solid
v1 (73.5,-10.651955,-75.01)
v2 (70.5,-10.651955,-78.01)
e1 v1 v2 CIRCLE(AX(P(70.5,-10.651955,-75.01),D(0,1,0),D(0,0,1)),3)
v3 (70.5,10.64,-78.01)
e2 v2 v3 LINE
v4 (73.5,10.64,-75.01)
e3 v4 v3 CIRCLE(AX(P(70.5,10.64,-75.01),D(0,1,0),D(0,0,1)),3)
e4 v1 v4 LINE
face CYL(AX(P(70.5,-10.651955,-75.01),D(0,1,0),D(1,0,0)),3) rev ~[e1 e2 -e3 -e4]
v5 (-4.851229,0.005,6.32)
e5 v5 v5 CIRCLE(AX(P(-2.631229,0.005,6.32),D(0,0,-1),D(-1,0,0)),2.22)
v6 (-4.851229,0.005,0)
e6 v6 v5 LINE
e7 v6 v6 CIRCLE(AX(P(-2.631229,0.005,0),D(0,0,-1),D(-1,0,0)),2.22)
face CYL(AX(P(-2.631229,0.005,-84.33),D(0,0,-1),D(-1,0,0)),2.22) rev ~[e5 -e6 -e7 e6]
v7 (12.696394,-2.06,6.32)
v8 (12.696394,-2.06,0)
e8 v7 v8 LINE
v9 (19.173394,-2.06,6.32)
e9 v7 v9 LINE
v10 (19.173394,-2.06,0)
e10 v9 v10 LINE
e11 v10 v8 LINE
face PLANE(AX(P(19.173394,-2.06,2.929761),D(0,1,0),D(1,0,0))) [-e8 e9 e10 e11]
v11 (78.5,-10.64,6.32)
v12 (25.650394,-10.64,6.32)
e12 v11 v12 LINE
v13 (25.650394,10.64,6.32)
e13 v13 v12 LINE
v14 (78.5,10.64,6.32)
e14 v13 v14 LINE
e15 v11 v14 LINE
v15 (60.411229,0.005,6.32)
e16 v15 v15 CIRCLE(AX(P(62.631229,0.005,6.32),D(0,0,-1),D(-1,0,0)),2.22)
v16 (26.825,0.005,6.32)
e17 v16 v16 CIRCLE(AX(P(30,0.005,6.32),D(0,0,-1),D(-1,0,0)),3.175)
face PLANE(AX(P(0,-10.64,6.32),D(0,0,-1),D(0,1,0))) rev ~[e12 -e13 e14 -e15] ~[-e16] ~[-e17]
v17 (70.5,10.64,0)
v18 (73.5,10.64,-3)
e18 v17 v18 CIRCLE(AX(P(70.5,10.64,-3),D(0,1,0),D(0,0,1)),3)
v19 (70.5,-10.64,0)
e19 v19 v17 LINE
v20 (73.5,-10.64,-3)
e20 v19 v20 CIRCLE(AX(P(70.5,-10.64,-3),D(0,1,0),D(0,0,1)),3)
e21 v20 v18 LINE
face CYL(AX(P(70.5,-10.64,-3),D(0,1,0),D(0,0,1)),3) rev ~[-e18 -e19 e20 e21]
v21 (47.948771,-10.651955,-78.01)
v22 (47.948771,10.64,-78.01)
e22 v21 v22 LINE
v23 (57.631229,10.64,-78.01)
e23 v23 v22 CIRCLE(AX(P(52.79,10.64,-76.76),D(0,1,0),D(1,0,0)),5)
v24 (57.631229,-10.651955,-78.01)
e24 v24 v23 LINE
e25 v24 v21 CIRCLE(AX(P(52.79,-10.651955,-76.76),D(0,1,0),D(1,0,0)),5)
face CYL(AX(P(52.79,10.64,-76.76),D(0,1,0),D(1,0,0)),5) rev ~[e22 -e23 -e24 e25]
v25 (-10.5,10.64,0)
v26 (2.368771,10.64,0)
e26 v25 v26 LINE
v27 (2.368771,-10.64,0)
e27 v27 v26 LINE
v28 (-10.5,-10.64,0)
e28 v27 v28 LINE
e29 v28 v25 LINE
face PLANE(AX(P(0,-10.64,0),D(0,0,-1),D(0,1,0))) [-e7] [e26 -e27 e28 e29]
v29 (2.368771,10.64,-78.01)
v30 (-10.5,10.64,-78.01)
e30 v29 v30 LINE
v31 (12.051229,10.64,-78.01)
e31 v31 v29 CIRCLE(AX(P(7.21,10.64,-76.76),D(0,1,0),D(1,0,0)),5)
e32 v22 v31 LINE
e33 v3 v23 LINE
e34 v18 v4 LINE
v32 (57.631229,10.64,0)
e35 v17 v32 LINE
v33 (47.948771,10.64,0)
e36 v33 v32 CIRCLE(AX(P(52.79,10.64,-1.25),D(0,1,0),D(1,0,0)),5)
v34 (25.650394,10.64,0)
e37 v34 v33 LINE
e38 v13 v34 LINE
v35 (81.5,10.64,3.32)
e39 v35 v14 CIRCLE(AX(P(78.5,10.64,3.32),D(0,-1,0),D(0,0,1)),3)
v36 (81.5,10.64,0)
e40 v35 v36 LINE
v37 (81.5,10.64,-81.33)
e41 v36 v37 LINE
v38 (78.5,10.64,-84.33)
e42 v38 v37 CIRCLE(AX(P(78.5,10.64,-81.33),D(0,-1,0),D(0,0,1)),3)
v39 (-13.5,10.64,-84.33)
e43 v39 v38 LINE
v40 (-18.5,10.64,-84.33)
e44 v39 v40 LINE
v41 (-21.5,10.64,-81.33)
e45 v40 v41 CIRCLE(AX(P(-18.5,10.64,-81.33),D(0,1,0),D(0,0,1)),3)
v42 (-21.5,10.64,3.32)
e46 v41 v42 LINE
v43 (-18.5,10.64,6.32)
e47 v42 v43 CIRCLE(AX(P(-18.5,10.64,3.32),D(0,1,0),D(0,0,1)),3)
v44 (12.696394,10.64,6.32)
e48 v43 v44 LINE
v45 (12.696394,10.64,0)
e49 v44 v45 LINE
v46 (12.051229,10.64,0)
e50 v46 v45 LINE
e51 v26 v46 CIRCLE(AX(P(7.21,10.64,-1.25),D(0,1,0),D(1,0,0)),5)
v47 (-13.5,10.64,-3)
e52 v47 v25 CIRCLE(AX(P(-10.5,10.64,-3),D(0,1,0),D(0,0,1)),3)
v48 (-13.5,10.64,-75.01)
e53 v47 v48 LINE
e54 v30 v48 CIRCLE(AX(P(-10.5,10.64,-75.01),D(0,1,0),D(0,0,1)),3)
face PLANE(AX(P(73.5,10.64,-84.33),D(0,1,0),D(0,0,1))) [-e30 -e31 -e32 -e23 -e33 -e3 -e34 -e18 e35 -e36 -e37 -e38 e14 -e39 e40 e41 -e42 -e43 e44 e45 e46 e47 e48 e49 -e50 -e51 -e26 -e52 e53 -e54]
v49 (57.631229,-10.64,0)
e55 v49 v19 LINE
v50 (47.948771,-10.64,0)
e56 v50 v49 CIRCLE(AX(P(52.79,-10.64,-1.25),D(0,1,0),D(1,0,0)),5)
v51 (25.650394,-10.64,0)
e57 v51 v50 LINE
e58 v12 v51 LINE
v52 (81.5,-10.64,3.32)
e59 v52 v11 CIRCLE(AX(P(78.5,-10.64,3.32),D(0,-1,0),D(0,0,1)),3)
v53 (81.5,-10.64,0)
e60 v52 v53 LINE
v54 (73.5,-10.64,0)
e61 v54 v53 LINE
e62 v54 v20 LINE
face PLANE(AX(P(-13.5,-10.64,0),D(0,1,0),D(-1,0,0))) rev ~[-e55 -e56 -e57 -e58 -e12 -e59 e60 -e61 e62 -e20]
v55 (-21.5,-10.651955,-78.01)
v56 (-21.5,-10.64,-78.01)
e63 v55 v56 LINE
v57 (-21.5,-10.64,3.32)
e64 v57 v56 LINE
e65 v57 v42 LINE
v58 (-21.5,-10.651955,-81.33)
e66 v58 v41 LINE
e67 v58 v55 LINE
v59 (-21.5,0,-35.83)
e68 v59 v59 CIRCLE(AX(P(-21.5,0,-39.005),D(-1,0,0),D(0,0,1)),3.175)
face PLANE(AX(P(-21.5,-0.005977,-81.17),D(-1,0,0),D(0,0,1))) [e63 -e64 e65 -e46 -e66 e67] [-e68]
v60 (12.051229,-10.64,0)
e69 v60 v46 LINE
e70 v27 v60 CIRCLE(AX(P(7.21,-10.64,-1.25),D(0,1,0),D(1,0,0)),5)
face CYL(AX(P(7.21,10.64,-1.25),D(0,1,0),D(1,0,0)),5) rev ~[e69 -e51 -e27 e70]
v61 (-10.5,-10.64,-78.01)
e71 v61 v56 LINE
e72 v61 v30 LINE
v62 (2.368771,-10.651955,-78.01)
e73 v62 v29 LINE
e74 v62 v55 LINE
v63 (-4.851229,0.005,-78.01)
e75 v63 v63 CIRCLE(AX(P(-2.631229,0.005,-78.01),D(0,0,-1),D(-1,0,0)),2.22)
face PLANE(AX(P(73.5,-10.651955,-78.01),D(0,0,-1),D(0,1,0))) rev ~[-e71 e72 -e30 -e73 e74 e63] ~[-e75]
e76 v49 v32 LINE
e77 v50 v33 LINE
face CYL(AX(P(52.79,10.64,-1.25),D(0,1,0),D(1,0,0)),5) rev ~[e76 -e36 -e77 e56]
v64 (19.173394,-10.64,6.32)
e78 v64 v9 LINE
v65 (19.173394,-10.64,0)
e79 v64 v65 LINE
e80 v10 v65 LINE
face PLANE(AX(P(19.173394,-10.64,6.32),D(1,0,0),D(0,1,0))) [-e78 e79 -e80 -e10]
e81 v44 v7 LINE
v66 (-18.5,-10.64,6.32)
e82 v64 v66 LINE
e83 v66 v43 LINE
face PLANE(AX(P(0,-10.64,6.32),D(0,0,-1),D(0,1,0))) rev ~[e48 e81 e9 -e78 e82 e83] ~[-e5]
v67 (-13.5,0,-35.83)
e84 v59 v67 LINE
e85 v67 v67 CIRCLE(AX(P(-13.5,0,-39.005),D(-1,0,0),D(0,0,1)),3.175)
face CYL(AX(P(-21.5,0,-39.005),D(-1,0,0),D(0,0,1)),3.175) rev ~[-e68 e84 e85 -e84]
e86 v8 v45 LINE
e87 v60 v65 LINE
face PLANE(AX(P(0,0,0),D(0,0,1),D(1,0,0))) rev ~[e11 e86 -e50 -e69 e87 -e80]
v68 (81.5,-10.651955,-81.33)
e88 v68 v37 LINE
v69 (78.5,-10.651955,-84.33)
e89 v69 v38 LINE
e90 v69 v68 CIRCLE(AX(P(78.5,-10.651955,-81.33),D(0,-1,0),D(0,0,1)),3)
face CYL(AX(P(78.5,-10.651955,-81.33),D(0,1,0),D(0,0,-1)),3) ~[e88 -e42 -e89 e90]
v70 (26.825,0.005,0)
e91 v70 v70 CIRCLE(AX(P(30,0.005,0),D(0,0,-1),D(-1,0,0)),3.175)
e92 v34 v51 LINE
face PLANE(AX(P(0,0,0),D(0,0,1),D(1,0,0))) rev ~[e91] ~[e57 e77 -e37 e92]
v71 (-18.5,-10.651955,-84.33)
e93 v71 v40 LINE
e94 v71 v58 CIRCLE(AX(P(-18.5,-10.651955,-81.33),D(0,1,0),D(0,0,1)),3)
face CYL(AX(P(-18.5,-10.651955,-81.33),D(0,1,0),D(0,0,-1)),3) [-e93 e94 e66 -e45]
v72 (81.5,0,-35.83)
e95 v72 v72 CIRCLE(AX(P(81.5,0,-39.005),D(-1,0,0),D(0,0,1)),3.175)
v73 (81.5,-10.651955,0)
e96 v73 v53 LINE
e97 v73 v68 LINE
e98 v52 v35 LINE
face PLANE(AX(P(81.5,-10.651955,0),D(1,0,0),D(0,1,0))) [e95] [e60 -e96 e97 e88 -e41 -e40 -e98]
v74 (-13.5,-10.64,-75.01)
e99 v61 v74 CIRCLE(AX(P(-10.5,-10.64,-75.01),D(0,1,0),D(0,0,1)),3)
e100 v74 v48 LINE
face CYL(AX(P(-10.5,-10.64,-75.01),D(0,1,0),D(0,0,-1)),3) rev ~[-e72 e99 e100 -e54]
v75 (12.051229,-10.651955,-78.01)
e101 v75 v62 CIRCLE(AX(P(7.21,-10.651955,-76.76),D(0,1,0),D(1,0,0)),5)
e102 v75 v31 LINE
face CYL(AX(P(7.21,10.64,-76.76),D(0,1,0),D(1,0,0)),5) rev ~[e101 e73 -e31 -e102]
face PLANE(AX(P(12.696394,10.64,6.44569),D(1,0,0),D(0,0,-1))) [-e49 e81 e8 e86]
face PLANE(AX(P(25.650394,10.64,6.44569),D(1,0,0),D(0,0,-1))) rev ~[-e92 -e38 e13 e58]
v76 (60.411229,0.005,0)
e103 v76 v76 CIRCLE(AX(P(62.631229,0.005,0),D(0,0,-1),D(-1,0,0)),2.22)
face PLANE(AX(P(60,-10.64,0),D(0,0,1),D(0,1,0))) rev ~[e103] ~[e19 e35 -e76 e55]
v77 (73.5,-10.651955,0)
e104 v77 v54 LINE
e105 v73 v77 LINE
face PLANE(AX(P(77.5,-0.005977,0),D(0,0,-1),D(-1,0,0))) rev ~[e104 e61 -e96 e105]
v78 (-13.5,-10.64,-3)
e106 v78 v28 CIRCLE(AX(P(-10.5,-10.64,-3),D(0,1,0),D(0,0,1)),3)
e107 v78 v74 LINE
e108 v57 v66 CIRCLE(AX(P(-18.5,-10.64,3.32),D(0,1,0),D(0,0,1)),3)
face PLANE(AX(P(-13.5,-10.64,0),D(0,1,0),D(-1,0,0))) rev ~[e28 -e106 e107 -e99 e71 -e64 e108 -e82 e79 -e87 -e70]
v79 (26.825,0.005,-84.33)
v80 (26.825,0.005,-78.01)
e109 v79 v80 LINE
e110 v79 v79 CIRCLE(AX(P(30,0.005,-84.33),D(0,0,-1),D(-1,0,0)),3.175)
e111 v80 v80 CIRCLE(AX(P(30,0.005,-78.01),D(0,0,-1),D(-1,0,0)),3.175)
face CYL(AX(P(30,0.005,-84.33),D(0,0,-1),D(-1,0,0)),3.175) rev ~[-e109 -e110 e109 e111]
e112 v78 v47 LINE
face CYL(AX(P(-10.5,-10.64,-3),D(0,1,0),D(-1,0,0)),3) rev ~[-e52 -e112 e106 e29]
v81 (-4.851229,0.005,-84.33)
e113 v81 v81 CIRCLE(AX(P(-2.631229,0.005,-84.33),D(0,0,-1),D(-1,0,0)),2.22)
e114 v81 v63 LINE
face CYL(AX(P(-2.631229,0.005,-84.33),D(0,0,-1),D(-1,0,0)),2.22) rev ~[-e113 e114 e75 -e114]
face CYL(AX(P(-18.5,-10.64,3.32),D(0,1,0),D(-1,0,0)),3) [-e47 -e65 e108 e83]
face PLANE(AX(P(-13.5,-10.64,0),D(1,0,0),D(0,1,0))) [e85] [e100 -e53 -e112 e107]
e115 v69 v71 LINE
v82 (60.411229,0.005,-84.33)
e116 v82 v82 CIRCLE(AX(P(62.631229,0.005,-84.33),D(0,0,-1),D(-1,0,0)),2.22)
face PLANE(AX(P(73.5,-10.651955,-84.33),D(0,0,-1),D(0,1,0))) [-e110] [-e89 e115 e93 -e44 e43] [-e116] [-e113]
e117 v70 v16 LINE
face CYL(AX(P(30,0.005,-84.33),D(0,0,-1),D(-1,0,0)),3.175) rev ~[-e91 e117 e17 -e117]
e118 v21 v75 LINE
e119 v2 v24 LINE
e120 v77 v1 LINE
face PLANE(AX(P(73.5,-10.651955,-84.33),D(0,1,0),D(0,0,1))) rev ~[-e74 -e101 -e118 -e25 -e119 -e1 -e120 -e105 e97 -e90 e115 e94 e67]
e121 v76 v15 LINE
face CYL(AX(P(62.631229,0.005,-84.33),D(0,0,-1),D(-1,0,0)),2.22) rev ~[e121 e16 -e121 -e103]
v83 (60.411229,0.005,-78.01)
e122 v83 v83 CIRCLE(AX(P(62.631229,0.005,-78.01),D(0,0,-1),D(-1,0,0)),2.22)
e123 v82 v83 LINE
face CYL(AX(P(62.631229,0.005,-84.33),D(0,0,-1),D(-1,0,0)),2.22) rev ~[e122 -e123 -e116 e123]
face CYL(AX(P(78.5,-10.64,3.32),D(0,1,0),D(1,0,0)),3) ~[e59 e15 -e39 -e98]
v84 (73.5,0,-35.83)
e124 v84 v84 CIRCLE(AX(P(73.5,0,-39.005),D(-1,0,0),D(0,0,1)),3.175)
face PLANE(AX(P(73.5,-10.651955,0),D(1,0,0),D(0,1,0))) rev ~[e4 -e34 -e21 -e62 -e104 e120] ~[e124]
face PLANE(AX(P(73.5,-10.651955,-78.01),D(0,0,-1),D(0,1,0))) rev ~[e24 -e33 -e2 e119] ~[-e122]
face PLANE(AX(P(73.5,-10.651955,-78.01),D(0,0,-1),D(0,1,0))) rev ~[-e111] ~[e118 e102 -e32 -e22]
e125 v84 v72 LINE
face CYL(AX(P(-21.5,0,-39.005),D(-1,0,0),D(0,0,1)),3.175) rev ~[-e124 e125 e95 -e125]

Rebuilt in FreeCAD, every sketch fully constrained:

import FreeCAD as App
import Part
import Sketcher
Q = App.Units.Quantity


def edges_at(feature, points):
    """Names of the edges that pass closest to the given points."""
    edges = feature.Shape.Edges
    near = lambda p: min(range(len(edges)), key=lambda i: edges[i].distToShape(Part.Vertex(*p))[0])
    return sorted({f"Edge{near(p) + 1}" for p in points})


def add_polygon(sketch, points):
    """Adds a closed chain of lines whose ends are joined by coincident constraints."""
    first, n = sketch.GeometryCount, len(points)
    for a, b in zip(points, points[1:] + points[:1]):
        sketch.addGeometry(Part.LineSegment(App.Vector(*a, 0), App.Vector(*b, 0)), False)
    for i in range(n):
        sketch.addConstraint(Sketcher.Constraint("Coincident", first + i, 2, first + (i + 1) % n, 1))

doc = App.newDocument("Part")
body = doc.addObject("PartDesign::Body", "Body")

# Sketch on XZ plane
sketch1 = body.newObject("Sketcher::SketchObject", "Sketch")
sketch1.AttachmentSupport = (doc.getObject("XZ_Plane"), [""])
sketch1.MapMode = "FlatFace"
add_polygon(sketch1, [(0, 0), (0, 6), (60, 6), (60, 0)])  # lines 0-3
sketch1.addConstraint([
    Sketcher.Constraint("Vertical", 0),
    Sketcher.Constraint("Horizontal", 1),
    Sketcher.Constraint("Vertical", 2),
    Sketcher.Constraint("Horizontal", 3),
    Sketcher.Constraint("Coincident", 3, 2, -1, 1),
    Sketcher.Constraint("DistanceX", 1, 1, 1, 2, Q("60 mm")),
    Sketcher.Constraint("DistanceY", 0, 1, 0, 2, Q("6.32 mm")),
])
pad1 = body.newObject("PartDesign::Pad", "Pad")
pad1.Profile = sketch1
pad1.Length = 21.28
pad1.Midplane = True

# Sketch on XZ plane
sketch2 = body.newObject("Sketcher::SketchObject", "Sketch001")
sketch2.AttachmentSupport = (doc.getObject("XZ_Plane"), [""])
sketch2.MapMode = "FlatFace"
sketch2.AttachmentOffset = App.Placement(App.Vector(0, 0, -10.64), App.Rotation())
sketch2.addGeometry([
    Part.Circle(App.Vector(7, -1, 0), App.Vector(0, 0, 1), 5),
    Part.Circle(App.Vector(53, -1, 0), App.Vector(0, 0, 1), 5),
], False)
sketch2.addConstraint([
    Sketcher.Constraint("Equal", 0, 1),
    Sketcher.Constraint("Horizontal", 0, 3, 1, 3),
    Sketcher.Constraint("Diameter", 0, Q("10 mm")),
    Sketcher.Constraint("DistanceX", -1, 1, 0, 3, Q("7.21 mm")),
    Sketcher.Constraint("DistanceY", 0, 3, -1, 1, Q("1.25 mm")),
    Sketcher.Constraint("DistanceX", -1, 1, 1, 3, Q("52.79 mm")),
])
pocket1 = body.newObject("PartDesign::Pocket", "Pocket")
pocket1.Profile = sketch2
pocket1.Type = "ThroughAll"
pocket1.Reversed = True

# Sketch on YZ plane
sketch3 = body.newObject("Sketcher::SketchObject", "Sketch002")
sketch3.AttachmentSupport = (doc.getObject("YZ_Plane"), [""])
sketch3.MapMode = "FlatFace"
sketch3.AttachmentOffset = App.Placement(App.Vector(0, 0, 60), App.Rotation())
add_polygon(sketch3, [(11, 6), (-11, 6), (-11, 0), (11, 0)])  # lines 0-3
sketch3.addConstraint([
    Sketcher.Constraint("Horizontal", 0),
    Sketcher.Constraint("Vertical", 1),
    Sketcher.Constraint("Horizontal", 2),
    Sketcher.Constraint("Vertical", 3),
    Sketcher.Constraint("Symmetric", 1, 2, 2, 2, -1, 1),
    Sketcher.Constraint("DistanceX", 0, 2, 0, 1, Q("21.28 mm")),
    Sketcher.Constraint("DistanceY", 1, 2, 1, 1, Q("6.32 mm")),
])
pad2 = body.newObject("PartDesign::Pad", "Pad001")
pad2.Profile = sketch3
pad2.Length = 21.5

# Sketch on YZ plane
sketch4 = body.newObject("Sketcher::SketchObject", "Sketch003")
sketch4.AttachmentSupport = (doc.getObject("YZ_Plane"), [""])
sketch4.MapMode = "FlatFace"
add_polygon(sketch4, [(11, 0), (-11, 0), (-11, 6), (11, 6)])  # lines 0-3
sketch4.addConstraint([
    Sketcher.Constraint("Horizontal", 0),
    Sketcher.Constraint("Vertical", 1),
    Sketcher.Constraint("Horizontal", 2),
    Sketcher.Constraint("Vertical", 3),
    Sketcher.Constraint("Symmetric", 0, 2, 3, 2, -1, 1),
    Sketcher.Constraint("DistanceX", 0, 2, 0, 1, Q("21.28 mm")),
    Sketcher.Constraint("DistanceY", 1, 1, 1, 2, Q("6.32 mm")),
])
pad3 = body.newObject("PartDesign::Pad", "Pad002")
pad3.Profile = sketch4
pad3.Length = 21.5
pad3.Reversed = True

# Sketch on XY plane
sketch5 = body.newObject("Sketcher::SketchObject", "Sketch004")
sketch5.AttachmentSupport = (doc.getObject("XY_Plane"), [""])
sketch5.MapMode = "FlatFace"
add_polygon(sketch5, [(-14, 11), (-14, -11), (-22, -11), (-22, 11)])  # lines 0-3
sketch5.addConstraint([
    Sketcher.Constraint("Vertical", 0),
    Sketcher.Constraint("Horizontal", 1),
    Sketcher.Constraint("Vertical", 2),
    Sketcher.Constraint("Horizontal", 3),
    Sketcher.Constraint("DistanceX", 1, 2, 1, 1, Q("8 mm")),
    Sketcher.Constraint("DistanceY", 0, 2, 0, 1, Q("21.28 mm")),
    Sketcher.Constraint("DistanceX", 0, 2, -1, 1, Q("13.5 mm")),
    Sketcher.Constraint("DistanceY", 0, 2, -1, 1, Q("10.64 mm")),
])
pad4 = body.newObject("PartDesign::Pad", "Pad003")
pad4.Profile = sketch5
pad4.Length = 84.33
pad4.Reversed = True

# Sketch on XY plane
sketch6 = body.newObject("Sketcher::SketchObject", "Sketch005")
sketch6.AttachmentSupport = (doc.getObject("XY_Plane"), [""])
sketch6.MapMode = "FlatFace"
add_polygon(sketch6, [(82, 11), (82, -11), (74, -11), (74, 11)])  # lines 0-3
sketch6.addConstraint([
    Sketcher.Constraint("Vertical", 0),
    Sketcher.Constraint("Horizontal", 1),
    Sketcher.Constraint("Vertical", 2),
    Sketcher.Constraint("Horizontal", 3),
    Sketcher.Constraint("DistanceX", 1, 2, 1, 1, Q("8 mm")),
    Sketcher.Constraint("DistanceX", -1, 1, 0, 2, Q("81.5 mm")),
    Sketcher.Constraint("DistanceY", -1, 1, 2, 2, Q("10.64 mm")),
    Sketcher.Constraint("DistanceY", 0, 2, 0, 1, Q("21.291955 mm")),
])
pad5 = body.newObject("PartDesign::Pad", "Pad004")
pad5.Profile = sketch6
pad5.Length = 84.33
pad5.Reversed = True

# Sketch on YZ plane
sketch7 = body.newObject("Sketcher::SketchObject", "Sketch006")
sketch7.AttachmentSupport = (doc.getObject("YZ_Plane"), [""])
sketch7.MapMode = "FlatFace"
sketch7.AttachmentOffset = App.Placement(App.Vector(0, 0, 73.5), App.Rotation())
add_polygon(sketch7, [(11, -84), (-11, -84), (-11, -78), (11, -78)])  # lines 0-3
sketch7.addConstraint([
    Sketcher.Constraint("Horizontal", 0),
    Sketcher.Constraint("Vertical", 1),
    Sketcher.Constraint("Horizontal", 2),
    Sketcher.Constraint("Vertical", 3),
    Sketcher.Constraint("DistanceY", 1, 1, 1, 2, Q("6.32 mm")),
    Sketcher.Constraint("DistanceY", 0, 2, -1, 1, Q("84.33 mm")),
    Sketcher.Constraint("DistanceX", -1, 1, 2, 2, Q("10.64 mm")),
    Sketcher.Constraint("DistanceX", 0, 2, 0, 1, Q("21.291955 mm")),
])
pad6 = body.newObject("PartDesign::Pad", "Pad005")
pad6.Profile = sketch7
pad6.Type = "UpToLast"
pad6.Reversed = True

# Sketch on XZ plane
sketch8 = body.newObject("Sketcher::SketchObject", "Sketch007")
sketch8.AttachmentSupport = (doc.getObject("XZ_Plane"), [""])
sketch8.MapMode = "FlatFace"
sketch8.AttachmentOffset = App.Placement(App.Vector(0, 0, -10.64), App.Rotation())
sketch8.addGeometry([
    Part.Circle(App.Vector(7, -77, 0), App.Vector(0, 0, 1), 5),
    Part.Circle(App.Vector(53, -77, 0), App.Vector(0, 0, 1), 5),
], False)
sketch8.addConstraint([
    Sketcher.Constraint("Equal", 0, 1),
    Sketcher.Constraint("Horizontal", 0, 3, 1, 3),
    Sketcher.Constraint("Diameter", 0, Q("10 mm")),
    Sketcher.Constraint("DistanceX", -1, 1, 0, 3, Q("7.21 mm")),
    Sketcher.Constraint("DistanceY", 0, 3, -1, 1, Q("76.76 mm")),
    Sketcher.Constraint("DistanceX", -1, 1, 1, 3, Q("52.79 mm")),
])
pocket2 = body.newObject("PartDesign::Pocket", "Pocket001")
pocket2.Profile = sketch8
pocket2.Type = "ThroughAll"
pocket2.Reversed = True

# Sketch on XY plane
sketch9 = body.newObject("Sketcher::SketchObject", "Sketch008")
sketch9.AttachmentSupport = (doc.getObject("XY_Plane"), [""])
sketch9.MapMode = "FlatFace"
sketch9.AttachmentOffset = App.Placement(App.Vector(0, 0, -84.33), App.Rotation())
sketch9.addGeometry([
    Part.Circle(App.Vector(62.6, 0, 0), App.Vector(0, 0, 1), 2.2),
    Part.Circle(App.Vector(-2.6, 0, 0), App.Vector(0, 0, 1), 2.2),
], False)
sketch9.addConstraint([
    Sketcher.Constraint("Equal", 0, 1),
    Sketcher.Constraint("Horizontal", 0, 3, 1, 3),
    Sketcher.Constraint("Diameter", 0, Q("4.44 mm")),
    Sketcher.Constraint("DistanceY", -1, 1, 0, 3, Q("0.005 mm")),
    Sketcher.Constraint("DistanceX", -1, 1, 0, 3, Q("62.631229 mm")),
    Sketcher.Constraint("DistanceX", 1, 3, -1, 1, Q("2.631229 mm")),
])
pocket3 = body.newObject("PartDesign::Pocket", "Pocket002")
pocket3.Profile = sketch9
pocket3.Type = "ThroughAll"
pocket3.Reversed = True
doc.recompute()

fillet = body.newObject("PartDesign::Fillet", "Fillet")
fillet.Base = (pocket3, edges_at(pocket3, [
    (81.5, 0, 6.32),
    (-21.5, 0, 6.32),
    (-13.5, 0, 0),
    (-21.5, -0.006, -84.33),
    (73.5, 0, 0),
    (81.5, -0.006, -84.33),
    (-13.5, 0, -78.01),
    (73.5, -0.006, -78.01),
]))
fillet.Radius = 3

# Sketch on XY plane
sketch10 = body.newObject("Sketcher::SketchObject", "Sketch009")
sketch10.AttachmentSupport = (doc.getObject("XY_Plane"), [""])
sketch10.MapMode = "FlatFace"
sketch10.AttachmentOffset = App.Placement(App.Vector(0, 0, -84.33), App.Rotation())
sketch10.addGeometry(Part.Circle(App.Vector(30, 0, 0), App.Vector(0, 0, 1), 3.2), False)
sketch10.addConstraint([
    Sketcher.Constraint("Diameter", 0, Q("6.35 mm")),
    Sketcher.Constraint("DistanceX", -1, 1, 0, 3, Q("30 mm")),
    Sketcher.Constraint("DistanceY", -1, 1, 0, 3, Q("0.005 mm")),
])
pocket4 = body.newObject("PartDesign::Pocket", "Pocket003")
pocket4.Profile = sketch10
pocket4.Type = "ThroughAll"
pocket4.Reversed = True

# Sketch on XZ plane
sketch11 = body.newObject("Sketcher::SketchObject", "Sketch010")
sketch11.AttachmentSupport = (doc.getObject("XZ_Plane"), [""])
sketch11.MapMode = "FlatFace"
sketch11.AttachmentOffset = App.Placement(App.Vector(0, 0, -10.64), App.Rotation())
add_polygon(sketch11, [(13, -1), (13, 6), (26, 6), (26, -1)])  # lines 0-3
sketch11.addConstraint([
    Sketcher.Constraint("Vertical", 0),
    Sketcher.Constraint("Horizontal", 1),
    Sketcher.Constraint("Vertical", 2),
    Sketcher.Constraint("Horizontal", 3),
    Sketcher.Constraint("DistanceX", 1, 1, 1, 2, Q("12.954 mm")),
    Sketcher.Constraint("DistanceY", 0, 1, 0, 2, Q("7.031858 mm")),
    Sketcher.Constraint("DistanceY", -1, 1, 0, 2, Q("6.44569 mm")),
    Sketcher.Constraint("DistanceX", -1, 1, 0, 2, Q("12.696394 mm")),
])
pocket5 = body.newObject("PartDesign::Pocket", "Pocket004")
pocket5.Profile = sketch11
pocket5.Length = 25.4
pocket5.Midplane = True

# Sketch on XY plane
sketch12 = body.newObject("Sketcher::SketchObject", "Sketch011")
sketch12.AttachmentSupport = (doc.getObject("XY_Plane"), [""])
sketch12.MapMode = "FlatFace"
sketch12.AttachmentOffset = App.Placement(App.Vector(0, 0, 6.32), App.Rotation())
add_polygon(sketch12, [(19, -2), (19, -11), (26, -11), (26, -2)])  # lines 0-3
sketch12.addConstraint([
    Sketcher.Constraint("Vertical", 0),
    Sketcher.Constraint("Horizontal", 1),
    Sketcher.Constraint("Vertical", 2),
    Sketcher.Constraint("Horizontal", 3),
    Sketcher.Constraint("DistanceY", 0, 2, 0, 1, Q("8.58 mm")),
    Sketcher.Constraint("DistanceX", 1, 1, 1, 2, Q("6.477 mm")),
    Sketcher.Constraint("DistanceY", 0, 2, -1, 1, Q("10.64 mm")),
    Sketcher.Constraint("DistanceX", -1, 1, 0, 2, Q("19.173394 mm")),
])
pocket6 = body.newObject("PartDesign::Pocket", "Pocket005")
pocket6.Profile = sketch12
pocket6.Type = "UpToFirst"

# Sketch on YZ plane
sketch13 = body.newObject("Sketcher::SketchObject", "Sketch012")
sketch13.AttachmentSupport = (doc.getObject("YZ_Plane"), [""])
sketch13.MapMode = "FlatFace"
sketch13.AttachmentOffset = App.Placement(App.Vector(0, 0, -21.5), App.Rotation())
sketch13.addGeometry(Part.Circle(App.Vector(0, -39, 0), App.Vector(0, 0, 1), 3.2), False)
sketch13.addConstraint([
    Sketcher.Constraint("PointOnObject", 0, 3, -2),
    Sketcher.Constraint("Diameter", 0, Q("6.35 mm")),
    Sketcher.Constraint("DistanceY", 0, 3, -1, 1, Q("39.005 mm")),
])
pocket7 = body.newObject("PartDesign::Pocket", "Pocket006")
pocket7.Profile = sketch13
pocket7.Type = "ThroughAll"
pocket7.Reversed = True

doc.recompute()
